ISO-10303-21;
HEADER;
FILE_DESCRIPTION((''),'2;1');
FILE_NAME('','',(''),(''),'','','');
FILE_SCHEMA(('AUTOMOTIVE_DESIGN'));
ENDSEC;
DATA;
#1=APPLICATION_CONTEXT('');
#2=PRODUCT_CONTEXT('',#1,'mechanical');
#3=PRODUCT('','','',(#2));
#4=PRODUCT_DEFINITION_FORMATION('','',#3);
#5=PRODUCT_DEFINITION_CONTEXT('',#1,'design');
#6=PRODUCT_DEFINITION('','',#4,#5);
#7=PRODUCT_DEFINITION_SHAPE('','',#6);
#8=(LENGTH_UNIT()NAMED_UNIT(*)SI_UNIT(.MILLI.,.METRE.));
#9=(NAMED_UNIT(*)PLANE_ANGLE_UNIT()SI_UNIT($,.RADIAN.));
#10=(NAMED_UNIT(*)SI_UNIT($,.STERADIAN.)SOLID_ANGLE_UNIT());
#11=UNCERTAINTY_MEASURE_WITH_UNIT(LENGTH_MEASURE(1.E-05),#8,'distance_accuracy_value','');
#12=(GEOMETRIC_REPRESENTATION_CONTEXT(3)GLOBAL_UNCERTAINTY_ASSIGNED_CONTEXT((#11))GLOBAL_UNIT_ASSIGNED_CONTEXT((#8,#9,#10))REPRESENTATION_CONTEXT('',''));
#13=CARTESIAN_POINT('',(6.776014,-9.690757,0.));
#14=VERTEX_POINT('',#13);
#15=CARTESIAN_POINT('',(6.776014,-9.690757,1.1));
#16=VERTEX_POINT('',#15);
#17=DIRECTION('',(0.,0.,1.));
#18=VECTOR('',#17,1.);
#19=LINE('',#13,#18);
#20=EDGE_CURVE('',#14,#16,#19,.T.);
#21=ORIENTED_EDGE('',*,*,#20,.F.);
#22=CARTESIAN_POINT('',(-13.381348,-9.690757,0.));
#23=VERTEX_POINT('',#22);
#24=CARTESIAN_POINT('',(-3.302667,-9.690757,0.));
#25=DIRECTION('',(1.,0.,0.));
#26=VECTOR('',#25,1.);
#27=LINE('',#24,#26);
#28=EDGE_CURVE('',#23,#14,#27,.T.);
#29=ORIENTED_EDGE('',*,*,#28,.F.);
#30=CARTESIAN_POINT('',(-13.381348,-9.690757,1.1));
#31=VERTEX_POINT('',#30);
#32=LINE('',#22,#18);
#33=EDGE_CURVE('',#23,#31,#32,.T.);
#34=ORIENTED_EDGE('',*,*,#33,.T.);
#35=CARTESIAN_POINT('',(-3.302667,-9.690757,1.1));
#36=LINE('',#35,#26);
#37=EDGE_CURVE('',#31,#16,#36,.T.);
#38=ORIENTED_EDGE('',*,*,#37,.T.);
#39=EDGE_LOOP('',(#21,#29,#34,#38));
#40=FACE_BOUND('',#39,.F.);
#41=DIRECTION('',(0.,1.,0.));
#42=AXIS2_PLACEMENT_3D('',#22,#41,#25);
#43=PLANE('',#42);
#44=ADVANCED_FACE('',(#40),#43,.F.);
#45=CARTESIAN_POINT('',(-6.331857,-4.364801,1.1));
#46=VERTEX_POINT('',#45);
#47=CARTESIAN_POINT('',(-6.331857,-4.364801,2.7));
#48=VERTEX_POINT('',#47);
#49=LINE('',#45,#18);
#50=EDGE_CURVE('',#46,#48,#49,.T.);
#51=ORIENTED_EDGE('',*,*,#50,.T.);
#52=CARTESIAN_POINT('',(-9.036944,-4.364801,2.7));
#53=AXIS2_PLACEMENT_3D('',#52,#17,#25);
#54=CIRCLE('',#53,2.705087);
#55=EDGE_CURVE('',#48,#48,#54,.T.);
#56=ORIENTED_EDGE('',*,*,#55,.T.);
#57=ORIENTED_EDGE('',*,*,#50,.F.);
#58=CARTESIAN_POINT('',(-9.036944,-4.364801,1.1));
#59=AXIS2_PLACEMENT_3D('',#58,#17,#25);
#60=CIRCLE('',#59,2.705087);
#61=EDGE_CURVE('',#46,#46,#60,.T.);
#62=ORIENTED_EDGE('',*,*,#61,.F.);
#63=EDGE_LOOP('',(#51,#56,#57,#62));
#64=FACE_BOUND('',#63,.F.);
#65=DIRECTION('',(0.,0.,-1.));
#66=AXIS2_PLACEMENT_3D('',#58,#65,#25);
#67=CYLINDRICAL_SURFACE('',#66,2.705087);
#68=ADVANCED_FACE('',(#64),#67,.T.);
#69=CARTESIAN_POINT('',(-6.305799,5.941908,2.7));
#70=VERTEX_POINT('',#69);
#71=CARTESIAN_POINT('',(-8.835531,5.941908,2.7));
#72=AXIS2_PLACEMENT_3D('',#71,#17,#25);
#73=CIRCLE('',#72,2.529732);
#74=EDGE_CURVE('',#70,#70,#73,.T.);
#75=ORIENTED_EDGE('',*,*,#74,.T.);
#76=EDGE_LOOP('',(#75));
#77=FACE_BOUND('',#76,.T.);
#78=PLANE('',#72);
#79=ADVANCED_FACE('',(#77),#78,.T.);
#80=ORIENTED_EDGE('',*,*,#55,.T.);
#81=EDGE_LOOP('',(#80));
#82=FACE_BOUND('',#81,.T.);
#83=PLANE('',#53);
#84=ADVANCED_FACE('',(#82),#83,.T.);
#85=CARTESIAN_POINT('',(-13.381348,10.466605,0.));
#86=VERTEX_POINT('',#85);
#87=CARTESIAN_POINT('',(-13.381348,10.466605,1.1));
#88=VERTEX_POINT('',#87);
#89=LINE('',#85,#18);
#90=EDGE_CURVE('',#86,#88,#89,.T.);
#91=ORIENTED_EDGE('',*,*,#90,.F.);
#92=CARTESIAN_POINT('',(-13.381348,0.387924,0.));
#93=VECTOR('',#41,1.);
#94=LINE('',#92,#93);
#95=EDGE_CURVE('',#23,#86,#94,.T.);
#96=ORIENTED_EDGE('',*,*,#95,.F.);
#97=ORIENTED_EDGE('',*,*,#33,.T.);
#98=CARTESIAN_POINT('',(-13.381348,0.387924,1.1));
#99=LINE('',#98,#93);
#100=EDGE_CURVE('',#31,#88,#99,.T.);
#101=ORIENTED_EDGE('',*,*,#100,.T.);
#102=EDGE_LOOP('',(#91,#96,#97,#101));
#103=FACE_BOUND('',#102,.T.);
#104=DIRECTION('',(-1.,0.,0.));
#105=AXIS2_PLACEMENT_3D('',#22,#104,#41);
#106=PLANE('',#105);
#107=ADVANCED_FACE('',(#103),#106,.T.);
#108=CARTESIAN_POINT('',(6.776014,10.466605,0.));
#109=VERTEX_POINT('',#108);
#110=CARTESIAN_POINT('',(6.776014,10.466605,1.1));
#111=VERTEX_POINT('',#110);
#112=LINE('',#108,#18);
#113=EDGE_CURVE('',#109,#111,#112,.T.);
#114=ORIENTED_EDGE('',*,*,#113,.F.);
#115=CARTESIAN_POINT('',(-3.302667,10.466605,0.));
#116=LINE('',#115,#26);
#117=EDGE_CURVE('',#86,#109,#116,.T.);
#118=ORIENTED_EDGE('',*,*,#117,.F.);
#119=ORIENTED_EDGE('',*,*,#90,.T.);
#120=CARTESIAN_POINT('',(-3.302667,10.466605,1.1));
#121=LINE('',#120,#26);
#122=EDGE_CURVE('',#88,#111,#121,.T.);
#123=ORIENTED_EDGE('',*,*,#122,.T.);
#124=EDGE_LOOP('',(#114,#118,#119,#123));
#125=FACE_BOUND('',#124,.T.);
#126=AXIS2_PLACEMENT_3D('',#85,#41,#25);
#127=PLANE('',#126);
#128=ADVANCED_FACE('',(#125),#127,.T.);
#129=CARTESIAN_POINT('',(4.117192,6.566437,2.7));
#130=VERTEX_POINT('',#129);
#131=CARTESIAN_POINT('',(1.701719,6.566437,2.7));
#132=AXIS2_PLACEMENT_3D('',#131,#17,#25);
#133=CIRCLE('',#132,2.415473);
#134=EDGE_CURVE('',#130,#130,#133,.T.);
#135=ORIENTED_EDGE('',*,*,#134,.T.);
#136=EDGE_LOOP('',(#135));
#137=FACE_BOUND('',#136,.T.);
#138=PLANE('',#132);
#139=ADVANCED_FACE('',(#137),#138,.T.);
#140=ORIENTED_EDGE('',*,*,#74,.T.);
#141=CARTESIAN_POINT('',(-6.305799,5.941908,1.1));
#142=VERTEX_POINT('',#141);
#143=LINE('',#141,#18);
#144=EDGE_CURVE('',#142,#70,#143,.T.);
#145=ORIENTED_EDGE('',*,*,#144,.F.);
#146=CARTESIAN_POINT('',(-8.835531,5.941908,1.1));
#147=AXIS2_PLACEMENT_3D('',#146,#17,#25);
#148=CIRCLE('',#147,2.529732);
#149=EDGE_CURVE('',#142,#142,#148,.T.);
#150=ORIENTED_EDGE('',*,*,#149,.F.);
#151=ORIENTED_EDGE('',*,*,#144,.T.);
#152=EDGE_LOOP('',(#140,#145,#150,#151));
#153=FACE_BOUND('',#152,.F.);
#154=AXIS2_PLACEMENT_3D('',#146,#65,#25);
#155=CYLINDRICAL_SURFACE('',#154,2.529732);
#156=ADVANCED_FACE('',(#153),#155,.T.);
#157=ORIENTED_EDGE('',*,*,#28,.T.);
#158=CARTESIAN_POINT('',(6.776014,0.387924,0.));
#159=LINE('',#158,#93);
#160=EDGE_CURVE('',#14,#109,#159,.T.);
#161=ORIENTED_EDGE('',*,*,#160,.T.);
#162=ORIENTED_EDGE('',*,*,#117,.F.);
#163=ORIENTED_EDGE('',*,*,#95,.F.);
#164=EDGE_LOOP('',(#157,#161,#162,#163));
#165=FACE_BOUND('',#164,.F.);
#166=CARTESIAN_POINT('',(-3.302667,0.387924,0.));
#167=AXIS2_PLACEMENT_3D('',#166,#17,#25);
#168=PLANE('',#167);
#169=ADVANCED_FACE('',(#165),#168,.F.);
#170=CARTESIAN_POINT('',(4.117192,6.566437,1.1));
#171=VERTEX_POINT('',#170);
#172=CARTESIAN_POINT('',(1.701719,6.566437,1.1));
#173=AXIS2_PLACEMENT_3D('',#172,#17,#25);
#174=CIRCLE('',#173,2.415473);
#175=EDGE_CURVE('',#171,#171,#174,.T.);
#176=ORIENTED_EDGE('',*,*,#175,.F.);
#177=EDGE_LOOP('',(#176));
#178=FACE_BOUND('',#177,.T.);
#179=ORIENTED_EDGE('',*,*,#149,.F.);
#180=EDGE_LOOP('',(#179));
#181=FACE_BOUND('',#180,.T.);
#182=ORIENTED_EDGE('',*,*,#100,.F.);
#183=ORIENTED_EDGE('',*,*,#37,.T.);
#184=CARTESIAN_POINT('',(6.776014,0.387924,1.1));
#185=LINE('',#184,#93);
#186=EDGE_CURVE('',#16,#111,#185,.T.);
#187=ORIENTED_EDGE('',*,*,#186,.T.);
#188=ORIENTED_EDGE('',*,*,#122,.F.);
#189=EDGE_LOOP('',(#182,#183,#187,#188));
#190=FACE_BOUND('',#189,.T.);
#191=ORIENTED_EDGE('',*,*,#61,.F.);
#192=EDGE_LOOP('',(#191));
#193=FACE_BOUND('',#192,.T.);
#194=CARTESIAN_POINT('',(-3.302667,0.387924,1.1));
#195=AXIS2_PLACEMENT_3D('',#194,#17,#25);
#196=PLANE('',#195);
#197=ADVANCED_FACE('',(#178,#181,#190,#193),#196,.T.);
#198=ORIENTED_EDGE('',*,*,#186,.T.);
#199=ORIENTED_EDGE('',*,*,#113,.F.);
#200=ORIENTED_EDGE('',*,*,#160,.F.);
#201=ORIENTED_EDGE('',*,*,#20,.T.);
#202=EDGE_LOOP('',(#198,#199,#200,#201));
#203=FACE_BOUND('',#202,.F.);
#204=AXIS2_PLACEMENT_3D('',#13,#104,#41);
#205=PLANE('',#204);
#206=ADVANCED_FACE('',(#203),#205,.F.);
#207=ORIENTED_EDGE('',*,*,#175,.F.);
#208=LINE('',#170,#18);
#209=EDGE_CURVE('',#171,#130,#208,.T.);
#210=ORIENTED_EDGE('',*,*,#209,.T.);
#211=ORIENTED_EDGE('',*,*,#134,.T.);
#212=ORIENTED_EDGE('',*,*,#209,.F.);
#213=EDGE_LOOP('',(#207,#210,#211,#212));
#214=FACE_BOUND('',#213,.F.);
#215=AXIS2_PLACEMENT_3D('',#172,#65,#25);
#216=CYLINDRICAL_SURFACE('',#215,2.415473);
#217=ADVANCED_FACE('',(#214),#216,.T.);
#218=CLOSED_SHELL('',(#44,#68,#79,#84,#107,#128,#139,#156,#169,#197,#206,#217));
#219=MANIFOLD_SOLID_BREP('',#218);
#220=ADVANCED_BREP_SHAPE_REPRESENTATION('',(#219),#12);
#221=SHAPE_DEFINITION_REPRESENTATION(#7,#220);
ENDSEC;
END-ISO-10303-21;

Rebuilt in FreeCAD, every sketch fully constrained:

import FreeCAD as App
import Part
import Sketcher

V = App.Vector

doc = App.newDocument("Part")
body = doc.addObject("PartDesign::Body", "Body")

sketch1 = body.newObject("Sketcher::SketchObject", "Sketch")
sketch1.AttachmentSupport = (doc.getObject("XY_Plane"), [""])
sketch1.MapMode = "FlatFace"
sketch1.addGeometry([
    Part.LineSegment(V(-13, 10, 0), V(-13, -10, 0)),
    Part.LineSegment(V(-13, -10, 0), V(7, -10, 0)),
    Part.LineSegment(V(7, -10, 0), V(7, 10, 0)),
    Part.LineSegment(V(7, 10, 0), V(-13, 10, 0)),
], False)
sketch1.addConstraint([
    Sketcher.Constraint("Coincident", 0, 2, 1, 1),
    Sketcher.Constraint("Coincident", 1, 2, 2, 1),
    Sketcher.Constraint("Coincident", 2, 2, 3, 1),
    Sketcher.Constraint("Coincident", 3, 2, 0, 1),
    Sketcher.Constraint("Vertical", 0),
    Sketcher.Constraint("Horizontal", 1),
    Sketcher.Constraint("Vertical", 2),
    Sketcher.Constraint("Horizontal", 3),
    Sketcher.Constraint("Equal", 3, 0),
    Sketcher.Constraint("DistanceX", 1, 1, 1, 2, 20.157362),
    Sketcher.Constraint("DistanceX", 0, 2, -1, 1, 13.381348),
    Sketcher.Constraint("DistanceY", 0, 2, -1, 1, 9.690757),
])
pad1 = body.newObject("PartDesign::Pad", "Pad")
pad1.Profile = sketch1
pad1.Length = 1.1

sketch2 = body.newObject("Sketcher::SketchObject", "Sketch001")
sketch2.AttachmentSupport = (doc.getObject("XY_Plane"), [""])
sketch2.MapMode = "FlatFace"
sketch2.AttachmentOffset = App.Placement(V(0, 0, 1.1), App.Rotation())
sketch2.addGeometry([
    Part.Circle(V(-8.8, 5.9, 0), V(0, 0, 1), 2.5),
    Part.Circle(V(1.7, 6.6, 0), V(0, 0, 1), 2.4),
    Part.Circle(V(-9, -4.4, 0), V(0, 0, 1), 2.7),
], False)
sketch2.addConstraint([
    Sketcher.Constraint("Diameter", 0, 5.059464),
    Sketcher.Constraint("Diameter", 1, 4.830946),
    Sketcher.Constraint("Diameter", 2, 5.410174),
    Sketcher.Constraint("DistanceY", 2, 3, -1, 1, 4.364801),
    Sketcher.Constraint("DistanceX", 0, 3, -1, 1, 8.835531),
    Sketcher.Constraint("DistanceX", -1, 1, 1, 3, 1.701719),
    Sketcher.Constraint("DistanceY", 0, 3, 1, 3, 0.624529),
    Sketcher.Constraint("DistanceY", 2, 3, 0, 3, 10.306709),
    Sketcher.Constraint("DistanceX", 2, 3, -1, 1, 9.036944),
])
pad2 = body.newObject("PartDesign::Pad", "Pad001")
pad2.Profile = sketch2
pad2.Length = 1.6

doc.recompute()
